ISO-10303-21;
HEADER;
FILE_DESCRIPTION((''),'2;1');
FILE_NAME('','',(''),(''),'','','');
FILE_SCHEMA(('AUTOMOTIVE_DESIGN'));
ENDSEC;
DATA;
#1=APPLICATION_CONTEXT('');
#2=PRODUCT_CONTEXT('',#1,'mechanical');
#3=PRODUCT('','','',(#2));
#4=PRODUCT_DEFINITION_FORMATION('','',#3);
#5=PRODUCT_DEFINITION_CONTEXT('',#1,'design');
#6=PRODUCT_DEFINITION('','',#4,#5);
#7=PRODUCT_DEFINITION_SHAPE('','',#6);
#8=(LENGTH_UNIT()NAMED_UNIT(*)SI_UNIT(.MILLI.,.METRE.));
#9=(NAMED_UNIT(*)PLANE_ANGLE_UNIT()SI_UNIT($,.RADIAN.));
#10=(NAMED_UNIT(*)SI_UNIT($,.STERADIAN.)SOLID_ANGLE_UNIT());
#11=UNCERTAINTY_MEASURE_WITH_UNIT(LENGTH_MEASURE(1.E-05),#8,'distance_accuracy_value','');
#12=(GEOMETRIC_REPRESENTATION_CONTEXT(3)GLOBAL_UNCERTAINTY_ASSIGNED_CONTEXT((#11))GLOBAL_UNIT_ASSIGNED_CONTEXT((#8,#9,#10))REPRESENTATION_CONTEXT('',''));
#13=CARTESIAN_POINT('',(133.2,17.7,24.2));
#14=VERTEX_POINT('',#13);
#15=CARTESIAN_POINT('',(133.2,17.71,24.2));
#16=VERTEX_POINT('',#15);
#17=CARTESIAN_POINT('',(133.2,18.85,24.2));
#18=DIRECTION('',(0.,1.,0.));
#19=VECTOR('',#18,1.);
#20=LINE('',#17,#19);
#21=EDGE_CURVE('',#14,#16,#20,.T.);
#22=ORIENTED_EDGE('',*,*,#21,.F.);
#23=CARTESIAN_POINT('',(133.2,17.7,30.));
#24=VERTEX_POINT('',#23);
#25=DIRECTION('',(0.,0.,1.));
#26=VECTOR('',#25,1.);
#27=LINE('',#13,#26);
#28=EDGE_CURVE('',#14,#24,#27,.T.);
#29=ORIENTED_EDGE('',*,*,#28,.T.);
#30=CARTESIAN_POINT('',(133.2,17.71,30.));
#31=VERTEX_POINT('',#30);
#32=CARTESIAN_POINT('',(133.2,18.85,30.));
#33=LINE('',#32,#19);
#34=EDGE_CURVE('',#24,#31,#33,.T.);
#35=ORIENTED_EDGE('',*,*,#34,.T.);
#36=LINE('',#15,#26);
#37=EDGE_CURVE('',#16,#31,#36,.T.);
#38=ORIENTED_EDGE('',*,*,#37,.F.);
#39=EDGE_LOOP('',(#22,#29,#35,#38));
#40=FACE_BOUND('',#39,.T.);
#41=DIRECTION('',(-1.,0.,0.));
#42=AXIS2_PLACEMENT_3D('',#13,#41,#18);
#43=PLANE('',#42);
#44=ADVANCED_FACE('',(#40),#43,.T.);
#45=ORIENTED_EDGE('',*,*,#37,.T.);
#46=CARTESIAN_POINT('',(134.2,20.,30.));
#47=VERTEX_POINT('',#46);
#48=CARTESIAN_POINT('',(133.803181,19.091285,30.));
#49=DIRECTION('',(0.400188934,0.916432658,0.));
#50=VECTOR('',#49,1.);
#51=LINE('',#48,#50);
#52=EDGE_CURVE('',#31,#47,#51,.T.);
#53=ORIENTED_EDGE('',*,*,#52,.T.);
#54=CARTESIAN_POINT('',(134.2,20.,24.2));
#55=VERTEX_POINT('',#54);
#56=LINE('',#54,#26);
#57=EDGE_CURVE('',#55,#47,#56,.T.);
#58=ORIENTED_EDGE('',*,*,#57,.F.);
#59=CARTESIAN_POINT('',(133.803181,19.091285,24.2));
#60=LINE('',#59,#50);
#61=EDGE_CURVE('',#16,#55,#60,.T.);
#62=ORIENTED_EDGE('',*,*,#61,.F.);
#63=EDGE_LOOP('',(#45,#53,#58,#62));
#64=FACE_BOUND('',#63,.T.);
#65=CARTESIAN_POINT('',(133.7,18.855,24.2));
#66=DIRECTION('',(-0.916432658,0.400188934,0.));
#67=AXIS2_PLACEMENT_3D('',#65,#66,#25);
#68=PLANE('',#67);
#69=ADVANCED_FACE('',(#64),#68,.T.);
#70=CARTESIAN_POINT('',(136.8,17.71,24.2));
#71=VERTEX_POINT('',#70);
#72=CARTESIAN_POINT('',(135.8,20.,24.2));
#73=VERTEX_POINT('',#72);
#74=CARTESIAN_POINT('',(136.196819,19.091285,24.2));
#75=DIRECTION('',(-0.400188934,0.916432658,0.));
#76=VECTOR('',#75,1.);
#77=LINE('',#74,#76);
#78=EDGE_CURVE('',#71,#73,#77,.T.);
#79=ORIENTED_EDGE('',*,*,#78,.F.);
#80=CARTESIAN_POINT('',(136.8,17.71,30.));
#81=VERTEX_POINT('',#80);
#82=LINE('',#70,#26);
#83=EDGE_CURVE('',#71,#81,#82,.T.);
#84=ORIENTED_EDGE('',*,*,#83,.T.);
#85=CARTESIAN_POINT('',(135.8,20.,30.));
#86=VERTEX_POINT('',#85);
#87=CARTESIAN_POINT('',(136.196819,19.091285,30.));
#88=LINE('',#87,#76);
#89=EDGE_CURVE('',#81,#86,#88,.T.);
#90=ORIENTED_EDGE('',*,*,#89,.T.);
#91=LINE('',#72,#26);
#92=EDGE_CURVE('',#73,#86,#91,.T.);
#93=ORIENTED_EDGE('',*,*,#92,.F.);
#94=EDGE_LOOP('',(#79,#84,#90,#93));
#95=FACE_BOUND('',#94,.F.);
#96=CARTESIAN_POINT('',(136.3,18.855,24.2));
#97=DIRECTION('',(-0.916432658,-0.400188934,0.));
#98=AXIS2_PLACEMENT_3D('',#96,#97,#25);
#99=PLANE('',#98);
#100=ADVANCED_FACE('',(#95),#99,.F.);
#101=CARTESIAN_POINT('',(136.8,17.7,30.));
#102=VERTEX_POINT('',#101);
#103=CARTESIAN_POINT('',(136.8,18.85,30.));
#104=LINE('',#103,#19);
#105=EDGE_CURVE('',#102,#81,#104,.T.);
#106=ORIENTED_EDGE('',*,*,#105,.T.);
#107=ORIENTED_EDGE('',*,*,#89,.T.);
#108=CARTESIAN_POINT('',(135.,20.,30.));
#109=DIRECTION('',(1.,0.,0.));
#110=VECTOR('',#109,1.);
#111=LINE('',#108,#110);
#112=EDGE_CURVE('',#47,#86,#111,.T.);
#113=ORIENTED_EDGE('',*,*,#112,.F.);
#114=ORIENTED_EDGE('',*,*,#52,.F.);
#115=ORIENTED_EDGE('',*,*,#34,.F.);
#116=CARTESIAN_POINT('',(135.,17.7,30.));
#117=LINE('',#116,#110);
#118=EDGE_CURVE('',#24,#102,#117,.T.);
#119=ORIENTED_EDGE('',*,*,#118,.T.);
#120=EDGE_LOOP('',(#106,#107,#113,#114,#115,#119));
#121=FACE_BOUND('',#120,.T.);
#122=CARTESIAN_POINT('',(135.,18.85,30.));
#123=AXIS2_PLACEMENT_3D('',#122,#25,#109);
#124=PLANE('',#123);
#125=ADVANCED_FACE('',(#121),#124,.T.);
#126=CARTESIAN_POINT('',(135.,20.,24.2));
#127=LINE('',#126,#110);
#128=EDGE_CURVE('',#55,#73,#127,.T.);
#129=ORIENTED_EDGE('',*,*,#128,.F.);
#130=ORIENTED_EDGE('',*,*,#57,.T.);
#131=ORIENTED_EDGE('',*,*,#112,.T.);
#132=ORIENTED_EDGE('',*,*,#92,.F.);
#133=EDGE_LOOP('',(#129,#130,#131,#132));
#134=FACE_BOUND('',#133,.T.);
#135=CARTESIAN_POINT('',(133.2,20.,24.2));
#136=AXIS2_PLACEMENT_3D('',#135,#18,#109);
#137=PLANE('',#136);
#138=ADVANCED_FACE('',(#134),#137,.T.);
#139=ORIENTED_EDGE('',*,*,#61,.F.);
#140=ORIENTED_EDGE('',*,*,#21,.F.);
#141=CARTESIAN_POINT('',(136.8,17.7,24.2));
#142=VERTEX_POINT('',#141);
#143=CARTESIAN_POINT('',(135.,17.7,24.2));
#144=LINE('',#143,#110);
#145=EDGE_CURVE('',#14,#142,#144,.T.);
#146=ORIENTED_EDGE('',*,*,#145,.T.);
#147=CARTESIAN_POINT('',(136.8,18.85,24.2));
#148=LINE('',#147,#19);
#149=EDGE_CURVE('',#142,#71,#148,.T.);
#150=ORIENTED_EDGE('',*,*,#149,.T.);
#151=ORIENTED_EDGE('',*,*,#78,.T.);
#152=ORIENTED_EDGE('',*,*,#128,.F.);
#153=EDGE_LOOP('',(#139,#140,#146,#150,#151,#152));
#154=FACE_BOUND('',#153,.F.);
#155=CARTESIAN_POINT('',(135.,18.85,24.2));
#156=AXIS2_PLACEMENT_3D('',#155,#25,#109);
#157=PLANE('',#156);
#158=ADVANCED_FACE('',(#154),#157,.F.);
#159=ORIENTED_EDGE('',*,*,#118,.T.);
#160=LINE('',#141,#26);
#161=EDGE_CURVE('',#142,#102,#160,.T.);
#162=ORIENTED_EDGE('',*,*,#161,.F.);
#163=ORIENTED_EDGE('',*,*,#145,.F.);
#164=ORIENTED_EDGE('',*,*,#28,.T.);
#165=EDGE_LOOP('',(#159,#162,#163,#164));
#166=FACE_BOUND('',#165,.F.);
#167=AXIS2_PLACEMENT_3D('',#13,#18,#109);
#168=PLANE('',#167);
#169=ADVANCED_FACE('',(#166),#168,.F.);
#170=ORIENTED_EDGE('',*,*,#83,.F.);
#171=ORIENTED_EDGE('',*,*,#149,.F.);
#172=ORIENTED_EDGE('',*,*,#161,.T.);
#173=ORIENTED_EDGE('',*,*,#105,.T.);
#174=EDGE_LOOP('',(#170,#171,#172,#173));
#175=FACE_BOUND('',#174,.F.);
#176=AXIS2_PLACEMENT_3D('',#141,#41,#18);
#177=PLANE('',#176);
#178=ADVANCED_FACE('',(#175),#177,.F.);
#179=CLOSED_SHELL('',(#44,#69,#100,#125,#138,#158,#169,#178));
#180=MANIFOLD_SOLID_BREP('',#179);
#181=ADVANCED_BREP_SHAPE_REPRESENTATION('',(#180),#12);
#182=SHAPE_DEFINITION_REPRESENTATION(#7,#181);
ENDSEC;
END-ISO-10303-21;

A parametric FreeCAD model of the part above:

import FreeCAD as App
import Part
import Sketcher
Q = App.Units.Quantity


def edges_at(feature, points):
    """Names of the edges that pass closest to the given points."""
    edges = feature.Shape.Edges
    near = lambda p: min(range(len(edges)), key=lambda i: edges[i].distToShape(Part.Vertex(*p))[0])
    return sorted({f"Edge{near(p) + 1}" for p in points})


def add_polygon(sketch, points):
    """Adds a closed chain of lines whose ends are joined by coincident constraints."""
    first, n = sketch.GeometryCount, len(points)
    for a, b in zip(points, points[1:] + points[:1]):
        sketch.addGeometry(Part.LineSegment(App.Vector(*a, 0), App.Vector(*b, 0)), False)
    for i in range(n):
        sketch.addConstraint(Sketcher.Constraint("Coincident", first + i, 2, first + (i + 1) % n, 1))

doc = App.newDocument("Part")
body = doc.addObject("PartDesign::Body", "Body")

# Sketch on XY plane
sketch1 = body.newObject("Sketcher::SketchObject", "Sketch")
sketch1.AttachmentSupport = (doc.getObject("XY_Plane"), [""])
sketch1.MapMode = "FlatFace"
sketch1.AttachmentOffset = App.Placement(App.Vector(0, 0, 24.2), App.Rotation())
add_polygon(sketch1, [(53.2, 20), (53.2, 17.7), (56.8, 17.7), (56.8, 20)])  # lines 0-3
sketch1.addConstraint(Sketcher.Constraint("Vertical", 0))
sketch1.addConstraint(Sketcher.Constraint("Horizontal", 1))
sketch1.addConstraint(Sketcher.Constraint("Vertical", 2))
sketch1.addConstraint(Sketcher.Constraint("Horizontal", 3))
sketch1.addConstraint(Sketcher.Constraint("DistanceX", 1, 1, 1, 2, Q("3.6 mm")))
sketch1.addConstraint(Sketcher.Constraint("DistanceY", 0, 2, 0, 1, Q("2.3 mm")))
sketch1.addConstraint(Sketcher.Constraint("DistanceY", -1, 1, 2, 2, Q("20 mm")))
sketch1.addConstraint(Sketcher.Constraint("DistanceX", -1, 1, 0, 2, Q("53.2 mm")))
pad1 = body.newObject("PartDesign::Pad", "Pad")
pad1.Profile = sketch1
pad1.Length = 5.8
doc.recompute()

chamfer = body.newObject("PartDesign::Chamfer", "Chamfer")
chamfer.Base = (pad1, edges_at(pad1, [(56.8, 20, 27.1)]))
chamfer.ChamferType = "Two distances"
chamfer.Size = 2.29
chamfer.Size2 = 1
doc.recompute()

chamfer2 = body.newObject("PartDesign::Chamfer", "Chamfer001")
chamfer2.Base = (chamfer, edges_at(chamfer, [(53.2, 20, 27.1)]))
chamfer2.ChamferType = "Two distances"
chamfer2.Size = 2.29
chamfer2.Size2 = 1
chamfer2.FlipDirection = True
body2 = doc.addObject("PartDesign::Body", "Body001")
doc.recompute()

body.Placement = App.Placement(App.Vector(80, 0, 0), App.Rotation(App.Vector(0, 0, 1), 0))
boolean = body2.newObject("PartDesign::Boolean", "Boolean")
boolean.Type = "Fuse"
boolean.addObjects([body])

doc.recompute()
